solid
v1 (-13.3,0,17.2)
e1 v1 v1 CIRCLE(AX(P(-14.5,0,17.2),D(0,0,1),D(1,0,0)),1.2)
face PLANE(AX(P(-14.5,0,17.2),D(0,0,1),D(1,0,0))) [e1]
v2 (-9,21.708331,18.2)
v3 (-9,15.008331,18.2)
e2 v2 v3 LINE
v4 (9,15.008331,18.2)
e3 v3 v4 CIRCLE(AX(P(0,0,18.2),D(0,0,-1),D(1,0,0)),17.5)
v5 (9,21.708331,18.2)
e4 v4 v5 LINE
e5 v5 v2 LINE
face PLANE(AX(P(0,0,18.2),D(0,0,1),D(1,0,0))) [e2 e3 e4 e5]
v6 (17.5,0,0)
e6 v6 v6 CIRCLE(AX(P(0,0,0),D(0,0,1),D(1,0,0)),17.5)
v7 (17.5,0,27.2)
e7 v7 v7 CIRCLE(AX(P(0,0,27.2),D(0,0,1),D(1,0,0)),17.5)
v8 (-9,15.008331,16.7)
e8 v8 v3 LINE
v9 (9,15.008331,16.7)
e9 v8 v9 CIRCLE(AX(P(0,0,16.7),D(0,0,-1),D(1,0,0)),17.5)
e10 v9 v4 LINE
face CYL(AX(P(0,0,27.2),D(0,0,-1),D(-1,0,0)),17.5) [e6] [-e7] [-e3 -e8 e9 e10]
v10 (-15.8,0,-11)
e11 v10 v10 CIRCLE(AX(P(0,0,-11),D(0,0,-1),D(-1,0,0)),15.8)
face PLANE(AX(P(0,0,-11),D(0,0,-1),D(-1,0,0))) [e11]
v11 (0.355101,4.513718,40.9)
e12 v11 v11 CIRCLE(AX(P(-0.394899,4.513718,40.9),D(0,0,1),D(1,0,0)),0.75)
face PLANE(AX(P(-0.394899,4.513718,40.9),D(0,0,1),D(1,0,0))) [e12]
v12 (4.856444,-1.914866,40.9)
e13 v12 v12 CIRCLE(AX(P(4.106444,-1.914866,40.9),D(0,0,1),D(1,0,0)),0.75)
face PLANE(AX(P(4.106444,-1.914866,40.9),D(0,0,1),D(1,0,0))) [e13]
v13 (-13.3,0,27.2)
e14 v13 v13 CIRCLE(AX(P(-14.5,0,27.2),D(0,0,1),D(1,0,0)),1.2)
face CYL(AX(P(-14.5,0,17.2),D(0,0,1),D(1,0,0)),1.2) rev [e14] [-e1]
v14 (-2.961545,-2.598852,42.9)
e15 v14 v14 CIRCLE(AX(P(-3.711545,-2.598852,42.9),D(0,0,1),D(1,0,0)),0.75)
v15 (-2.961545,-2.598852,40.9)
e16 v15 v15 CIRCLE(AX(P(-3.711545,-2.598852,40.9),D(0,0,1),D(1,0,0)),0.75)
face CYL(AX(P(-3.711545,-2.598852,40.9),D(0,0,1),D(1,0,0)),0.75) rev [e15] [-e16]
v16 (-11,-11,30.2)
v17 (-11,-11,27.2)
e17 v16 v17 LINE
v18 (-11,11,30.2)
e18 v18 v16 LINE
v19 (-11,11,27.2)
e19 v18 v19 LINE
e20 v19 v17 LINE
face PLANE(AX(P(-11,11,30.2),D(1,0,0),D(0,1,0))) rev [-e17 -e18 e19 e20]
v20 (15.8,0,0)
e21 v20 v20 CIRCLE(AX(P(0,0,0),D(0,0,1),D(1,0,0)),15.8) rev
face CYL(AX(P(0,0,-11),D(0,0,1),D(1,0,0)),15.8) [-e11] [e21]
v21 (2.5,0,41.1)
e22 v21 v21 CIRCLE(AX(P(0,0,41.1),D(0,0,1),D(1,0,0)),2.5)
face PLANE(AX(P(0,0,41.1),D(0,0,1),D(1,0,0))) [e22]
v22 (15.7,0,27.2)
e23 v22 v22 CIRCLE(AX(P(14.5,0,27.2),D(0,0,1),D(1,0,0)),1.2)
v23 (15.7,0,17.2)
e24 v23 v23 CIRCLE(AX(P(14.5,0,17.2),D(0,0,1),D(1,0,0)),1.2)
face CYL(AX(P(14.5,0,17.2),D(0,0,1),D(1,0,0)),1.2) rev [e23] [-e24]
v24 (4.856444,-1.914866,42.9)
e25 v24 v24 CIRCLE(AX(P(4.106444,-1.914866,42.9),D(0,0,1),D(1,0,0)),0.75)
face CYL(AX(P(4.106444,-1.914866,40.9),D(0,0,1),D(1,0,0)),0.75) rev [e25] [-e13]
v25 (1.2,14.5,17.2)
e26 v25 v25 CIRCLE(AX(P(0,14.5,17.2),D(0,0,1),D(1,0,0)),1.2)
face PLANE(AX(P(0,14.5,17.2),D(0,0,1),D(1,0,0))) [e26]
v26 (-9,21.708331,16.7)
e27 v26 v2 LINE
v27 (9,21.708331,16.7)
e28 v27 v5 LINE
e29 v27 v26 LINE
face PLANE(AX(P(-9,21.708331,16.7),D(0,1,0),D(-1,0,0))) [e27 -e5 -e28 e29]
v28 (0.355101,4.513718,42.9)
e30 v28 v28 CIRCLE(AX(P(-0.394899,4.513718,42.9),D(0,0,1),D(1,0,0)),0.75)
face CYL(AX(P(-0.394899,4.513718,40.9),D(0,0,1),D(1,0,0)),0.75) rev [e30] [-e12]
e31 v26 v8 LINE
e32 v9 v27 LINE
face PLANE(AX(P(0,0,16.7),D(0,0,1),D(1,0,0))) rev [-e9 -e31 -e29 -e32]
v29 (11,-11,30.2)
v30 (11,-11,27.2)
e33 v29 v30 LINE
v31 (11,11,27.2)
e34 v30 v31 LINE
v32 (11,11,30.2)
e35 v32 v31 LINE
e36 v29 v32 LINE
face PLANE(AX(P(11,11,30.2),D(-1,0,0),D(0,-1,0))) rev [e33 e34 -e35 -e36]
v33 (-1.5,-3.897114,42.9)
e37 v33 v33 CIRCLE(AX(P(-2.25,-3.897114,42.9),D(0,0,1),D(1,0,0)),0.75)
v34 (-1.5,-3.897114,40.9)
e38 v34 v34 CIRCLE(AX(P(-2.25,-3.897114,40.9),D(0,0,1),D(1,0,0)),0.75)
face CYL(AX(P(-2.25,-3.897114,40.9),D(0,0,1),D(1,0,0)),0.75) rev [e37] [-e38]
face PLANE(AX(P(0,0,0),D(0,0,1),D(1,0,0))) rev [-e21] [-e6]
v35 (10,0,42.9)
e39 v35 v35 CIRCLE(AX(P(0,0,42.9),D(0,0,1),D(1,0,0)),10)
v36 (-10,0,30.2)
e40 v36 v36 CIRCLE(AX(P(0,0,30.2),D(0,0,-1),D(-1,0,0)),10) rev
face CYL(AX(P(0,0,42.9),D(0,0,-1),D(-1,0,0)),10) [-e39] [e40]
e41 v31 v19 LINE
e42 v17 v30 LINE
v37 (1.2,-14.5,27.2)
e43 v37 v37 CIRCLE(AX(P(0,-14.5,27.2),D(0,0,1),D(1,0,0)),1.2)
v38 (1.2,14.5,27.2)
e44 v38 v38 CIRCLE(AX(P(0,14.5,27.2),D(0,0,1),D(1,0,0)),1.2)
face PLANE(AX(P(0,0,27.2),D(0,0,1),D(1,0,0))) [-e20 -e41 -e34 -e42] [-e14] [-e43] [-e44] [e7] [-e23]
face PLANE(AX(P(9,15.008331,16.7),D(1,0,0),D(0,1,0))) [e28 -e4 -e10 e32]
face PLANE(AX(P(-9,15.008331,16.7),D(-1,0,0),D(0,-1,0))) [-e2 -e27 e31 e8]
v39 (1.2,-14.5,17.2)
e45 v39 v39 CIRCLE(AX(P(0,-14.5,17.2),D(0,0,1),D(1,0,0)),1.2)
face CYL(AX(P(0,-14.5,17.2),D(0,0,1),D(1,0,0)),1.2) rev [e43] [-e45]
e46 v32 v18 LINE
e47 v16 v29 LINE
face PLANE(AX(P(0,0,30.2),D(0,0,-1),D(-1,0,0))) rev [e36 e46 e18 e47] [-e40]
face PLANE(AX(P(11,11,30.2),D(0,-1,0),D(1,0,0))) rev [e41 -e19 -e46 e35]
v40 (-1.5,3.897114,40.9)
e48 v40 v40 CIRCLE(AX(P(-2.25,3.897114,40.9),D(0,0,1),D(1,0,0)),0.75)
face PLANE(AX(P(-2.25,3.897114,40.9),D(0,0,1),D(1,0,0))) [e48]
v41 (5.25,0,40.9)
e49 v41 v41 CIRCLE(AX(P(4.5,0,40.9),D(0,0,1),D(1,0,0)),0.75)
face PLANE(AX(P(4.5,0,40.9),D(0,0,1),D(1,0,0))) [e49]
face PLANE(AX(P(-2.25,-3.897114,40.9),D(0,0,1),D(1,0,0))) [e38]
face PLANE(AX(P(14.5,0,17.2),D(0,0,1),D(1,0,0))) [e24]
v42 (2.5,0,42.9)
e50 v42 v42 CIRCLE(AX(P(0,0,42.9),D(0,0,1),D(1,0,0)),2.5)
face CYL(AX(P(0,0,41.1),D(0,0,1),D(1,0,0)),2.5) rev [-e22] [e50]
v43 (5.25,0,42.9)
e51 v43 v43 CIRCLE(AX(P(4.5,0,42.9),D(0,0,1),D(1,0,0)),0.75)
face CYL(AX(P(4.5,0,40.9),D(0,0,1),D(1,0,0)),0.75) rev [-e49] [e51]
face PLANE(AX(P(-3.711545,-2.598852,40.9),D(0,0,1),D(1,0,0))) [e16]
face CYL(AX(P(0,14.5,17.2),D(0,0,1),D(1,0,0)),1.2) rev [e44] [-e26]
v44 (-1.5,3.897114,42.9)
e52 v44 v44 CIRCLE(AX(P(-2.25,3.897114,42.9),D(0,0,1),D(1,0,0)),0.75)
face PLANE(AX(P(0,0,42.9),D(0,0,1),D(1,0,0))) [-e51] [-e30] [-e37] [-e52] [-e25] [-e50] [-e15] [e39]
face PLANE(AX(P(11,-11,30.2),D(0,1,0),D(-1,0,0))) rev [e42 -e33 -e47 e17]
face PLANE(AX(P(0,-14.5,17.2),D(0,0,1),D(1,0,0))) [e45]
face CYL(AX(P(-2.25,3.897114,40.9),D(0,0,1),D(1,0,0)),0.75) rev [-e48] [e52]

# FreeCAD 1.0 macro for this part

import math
import FreeCAD as App
import Part
import Sketcher

V = App.Vector


def add_polygon(sketch, points):
    """Adds a closed chain of lines whose ends are joined by coincident constraints."""
    first, n = sketch.GeometryCount, len(points)
    for a, b in zip(points, points[1:] + points[:1]):
        sketch.addGeometry(Part.LineSegment(App.Vector(*a, 0), App.Vector(*b, 0)), False)
    for i in range(n):
        sketch.addConstraint(Sketcher.Constraint("Coincident", first + i, 2, first + (i + 1) % n, 1))

doc = App.newDocument("Part")
params = doc.addObject("Spreadsheet::Sheet", "Params")
for row, (alias, value) in enumerate([
    ("sketch1_diameter", "35 mm"),
    ("pad1_length", "27.2 mm"),
    ("sketch2_diameter", "31.6 mm"),
    ("pad2_length", "11 mm"),
    ("sketch3_width", "22 mm"),
    ("pad3_length", "3 mm"),
    ("sketch4_diameter", "20 mm"),
    ("pad4_length", "12.7 mm"),
    ("sketch5_diameter", "2.4 mm"),
    ("pocket1_length", "10 mm"),
    ("sketch6_radius", "17.5 mm"),
    ("sketch6_width", "18 mm"),
    ("sketch6_height", "6.7 mm"),
    ("pad5_length", "1.5 mm"),
    ("sketch7_diameter", "5 mm"),
    ("pocket2_length", "1.8 mm"),
    ("sketch8_diameter", "1.5 mm"),
    ("pocket3_length", "2 mm"),
], start=1):
    params.set(f"A{row}", alias)
    params.set(f"B{row}", "=" + value)
    params.setAlias(f"B{row}", alias)

body = doc.addObject("PartDesign::Body", "Body")

sketch1 = body.newObject("Sketcher::SketchObject", "Sketch")
sketch1.AttachmentSupport = (doc.getObject("XY_Plane"), [""])
sketch1.MapMode = "FlatFace"
sketch1.addGeometry(Part.Circle(V(0, 0, 0), V(0, 0, 1), 18), False)
sketch1.addConstraint(Sketcher.Constraint("Coincident", 0, 3, -1, 1))
sketch1.addConstraint(Sketcher.Constraint("Diameter", 0, 35.0))
sketch1.setExpression("Constraints[1]", "Params.sketch1_diameter")
pad1 = body.newObject("PartDesign::Pad", "Pad")
pad1.Profile = sketch1
pad1.setExpression("Length", "Params.pad1_length")

sketch2 = body.newObject("Sketcher::SketchObject", "Sketch001")
sketch2.AttachmentSupport = (doc.getObject("XY_Plane"), [""])
sketch2.MapMode = "FlatFace"
sketch2.addGeometry(Part.Circle(V(0, 0, 0), V(0, 0, 1), 16), False)
sketch2.addConstraint(Sketcher.Constraint("Coincident", 0, 3, -1, 1))
sketch2.addConstraint(Sketcher.Constraint("Diameter", 0, 31.6))
sketch2.setExpression("Constraints[1]", "Params.sketch2_diameter")
pad2 = body.newObject("PartDesign::Pad", "Pad001")
pad2.Profile = sketch2
pad2.setExpression("Length", "Params.pad2_length")
pad2.Reversed = True

sketch3 = body.newObject("Sketcher::SketchObject", "Sketch002")
sketch3.AttachmentSupport = (doc.getObject("XY_Plane"), [""])
sketch3.MapMode = "FlatFace"
sketch3.AttachmentOffset = App.Placement(V(0, 0, 27.2), App.Rotation())
add_polygon(sketch3, [(-11, 11), (-11, -11), (11, -11), (11, 11)])
sketch3.addConstraint(Sketcher.Constraint("Vertical", 0))
sketch3.addConstraint(Sketcher.Constraint("Horizontal", 1))
sketch3.addConstraint(Sketcher.Constraint("Vertical", 2))
sketch3.addConstraint(Sketcher.Constraint("Horizontal", 3))
sketch3.addConstraint(Sketcher.Constraint("Symmetric", 0, 2, 2, 2, -1, 1))
sketch3.addConstraint(Sketcher.Constraint("Equal", 3, 0))
sketch3.addConstraint(Sketcher.Constraint("DistanceX", 1, 1, 1, 2, 22.0))
sketch3.setExpression("Constraints[10]", "Params.sketch3_width")
pad3 = body.newObject("PartDesign::Pad", "Pad002")
pad3.Profile = sketch3
pad3.setExpression("Length", "Params.pad3_length")

sketch4 = body.newObject("Sketcher::SketchObject", "Sketch003")
sketch4.AttachmentSupport = (doc.getObject("XY_Plane"), [""])
sketch4.MapMode = "FlatFace"
sketch4.AttachmentOffset = App.Placement(V(0, 0, 30.2), App.Rotation())
sketch4.addGeometry(Part.Circle(V(0, 0, 0), V(0, 0, 1), 10), False)
sketch4.addConstraint(Sketcher.Constraint("Coincident", 0, 3, -1, 1))
sketch4.addConstraint(Sketcher.Constraint("Diameter", 0, 20.0))
sketch4.setExpression("Constraints[1]", "Params.sketch4_diameter")
pad4 = body.newObject("PartDesign::Pad", "Pad003")
pad4.Profile = sketch4
pad4.setExpression("Length", "Params.pad4_length")

sketch5 = body.newObject("Sketcher::SketchObject", "Sketch004")
sketch5.AttachmentSupport = (doc.getObject("XY_Plane"), [""])
sketch5.MapMode = "FlatFace"
sketch5.AttachmentOffset = App.Placement(V(0, 0, 27.2), App.Rotation())
sketch5.addGeometry(Part.Circle(V(0, -14.5, 0), V(0, 0, 1), 1.2), False)
sketch5.addGeometry(Part.Circle(V(-14.5, 0, 0), V(0, 0, 1), 1.2), False)
sketch5.addGeometry(Part.Circle(V(0, 14.5, 0), V(0, 0, 1), 1.2), False)
sketch5.addGeometry(Part.Circle(V(14.5, 0, 0), V(0, 0, 1), 1.2), False)
sketch5.addConstraint(Sketcher.Constraint("Equal", 0, 1))
sketch5.addConstraint(Sketcher.Constraint("Equal", 1, 2))
sketch5.addConstraint(Sketcher.Constraint("Equal", 2, 3))
sketch5.addConstraint(Sketcher.Constraint("Symmetric", 0, 3, 2, 3, -1, 1))
sketch5.addConstraint(Sketcher.Constraint("Symmetric", 1, 3, 3, 3, -1, 1))
sketch5.addConstraint(Sketcher.Constraint("PointOnObject", 0, 3, -2))
sketch5.addConstraint(Sketcher.Constraint("PointOnObject", 1, 3, -1))
sketch5.addConstraint(Sketcher.Constraint("Diameter", 0, 2.4))
sketch5.addConstraint(Sketcher.Constraint("DistanceY", 0, 3, 2, 3, 29.0))
sketch5.addConstraint(Sketcher.Constraint("DistanceX", 1, 3, 3, 3, 29.0))
sketch5.setExpression("Constraints[7]", "Params.sketch5_diameter")
pocket1 = body.newObject("PartDesign::Pocket", "Pocket")
pocket1.Profile = sketch5
pocket1.setExpression("Length", "Params.pocket1_length")

sketch6 = body.newObject("Sketcher::SketchObject", "Sketch005")
sketch6.AttachmentSupport = (doc.getObject("XY_Plane"), [""])
sketch6.MapMode = "FlatFace"
sketch6.AttachmentOffset = App.Placement(V(0, 0, 16.7), App.Rotation())
sketch6.addGeometry(Part.LineSegment(V(-9, 22, 0), V(-9, 15, 0)), False)
sketch6.addGeometry(Part.ArcOfCircle(Part.Circle(V(0, 0, 0), V(0, 0, 1), 18), math.radians(59), math.radians(121)), False)
sketch6.addGeometry(Part.LineSegment(V(9, 15, 0), V(9, 22, 0)), False)
sketch6.addGeometry(Part.LineSegment(V(9, 22, 0), V(-9, 22, 0)), False)
sketch6.addConstraint(Sketcher.Constraint("Coincident", 0, 2, 1, 2))
sketch6.addConstraint(Sketcher.Constraint("Coincident", 1, 1, 2, 1))
sketch6.addConstraint(Sketcher.Constraint("Coincident", 2, 2, 3, 1))
sketch6.addConstraint(Sketcher.Constraint("Coincident", 3, 2, 0, 1))
sketch6.addConstraint(Sketcher.Constraint("Vertical", 0))
sketch6.addConstraint(Sketcher.Constraint("Vertical", 2))
sketch6.addConstraint(Sketcher.Constraint("Horizontal", 3))
sketch6.addConstraint(Sketcher.Constraint("Coincident", 1, 3, -1, 1))
sketch6.addConstraint(Sketcher.Constraint("Horizontal", 0, 2, 1, 1))
sketch6.addConstraint(Sketcher.Constraint("Radius", 1, 17.5))
sketch6.addConstraint(Sketcher.Constraint("DistanceX", 3, 2, 3, 1, 18.0))
sketch6.addConstraint(Sketcher.Constraint("DistanceY", 0, 2, 0, 1, 6.7))
sketch6.setExpression("Constraints[9]", "Params.sketch6_radius")
sketch6.setExpression("Constraints[10]", "Params.sketch6_width")
sketch6.setExpression("Constraints[11]", "Params.sketch6_height")
pad5 = body.newObject("PartDesign::Pad", "Pad004")
pad5.Profile = sketch6
pad5.setExpression("Length", "Params.pad5_length")

sketch7 = body.newObject("Sketcher::SketchObject", "Sketch006")
sketch7.AttachmentSupport = (doc.getObject("XY_Plane"), [""])
sketch7.MapMode = "FlatFace"
sketch7.AttachmentOffset = App.Placement(V(0, 0, 42.9), App.Rotation())
sketch7.addGeometry(Part.Circle(V(0, 0, 0), V(0, 0, 1), 2.5), False)
sketch7.addConstraint(Sketcher.Constraint("Coincident", 0, 3, -1, 1))
sketch7.addConstraint(Sketcher.Constraint("Diameter", 0, 5.0))
sketch7.setExpression("Constraints[1]", "Params.sketch7_diameter")
pocket2 = body.newObject("PartDesign::Pocket", "Pocket001")
pocket2.Profile = sketch7
pocket2.setExpression("Length", "Params.pocket2_length")

sketch8 = body.newObject("Sketcher::SketchObject", "Sketch007")
sketch8.AttachmentSupport = (doc.getObject("XY_Plane"), [""])
sketch8.MapMode = "FlatFace"
sketch8.AttachmentOffset = App.Placement(V(0, 0, 42.9), App.Rotation())
sketch8.addGeometry(Part.Circle(V(4.5, 0, 0), V(0, 0, 1), 0.8), False)
sketch8.addGeometry(Part.Circle(V(4.1, -1.9, 0), V(0, 0, 1), 0.8), False)
sketch8.addGeometry(Part.Circle(V(-2.2, -3.9, 0), V(0, 0, 1), 0.8), False)
sketch8.addGeometry(Part.Circle(V(-3.7, -2.6, 0), V(0, 0, 1), 0.8), False)
sketch8.addGeometry(Part.Circle(V(-2.2, 3.9, 0), V(0, 0, 1), 0.8), False)
sketch8.addGeometry(Part.Circle(V(-0.4, 4.5, 0), V(0, 0, 1), 0.8), False)
sketch8.addConstraint(Sketcher.Constraint("Equal", 0, 1))
sketch8.addConstraint(Sketcher.Constraint("Equal", 1, 2))
sketch8.addConstraint(Sketcher.Constraint("Equal", 2, 3))
sketch8.addConstraint(Sketcher.Constraint("Equal", 3, 4))
sketch8.addConstraint(Sketcher.Constraint("Equal", 4, 5))
sketch8.addConstraint(Sketcher.Constraint("Symmetric", 2, 3, 4, 3, -1))
sketch8.addConstraint(Sketcher.Constraint("PointOnObject", 0, 3, -1))
sketch8.addConstraint(Sketcher.Constraint("Diameter", 0, 1.5))
sketch8.addConstraint(Sketcher.Constraint("DistanceX", -1, 1, 0, 3, 4.5))
sketch8.addConstraint(Sketcher.Constraint("DistanceX", 2, 3, -1, 1, 2.25))
sketch8.addConstraint(Sketcher.Constraint("DistanceX", 5, 3, -1, 1, 0.394899))
sketch8.addConstraint(Sketcher.Constraint("DistanceY", 3, 3, -1, 1, 2.598852))
sketch8.addConstraint(Sketcher.Constraint("DistanceY", 2, 3, 1, 3, 1.982248))
sketch8.addConstraint(Sketcher.Constraint("DistanceX", 3, 3, 1, 3, 7.817989))
sketch8.addConstraint(Sketcher.Constraint("DistanceY", 2, 3, 4, 3, 7.794229))
sketch8.addConstraint(Sketcher.Constraint("DistanceY", 3, 3, 5, 3, 7.112569))
sketch8.addConstraint(Sketcher.Constraint("DistanceX", -1, 1, 1, 3, 4.106444))
sketch8.setExpression("Constraints[7]", "Params.sketch8_diameter")
pocket3 = body.newObject("PartDesign::Pocket", "Pocket002")
pocket3.Profile = sketch8
pocket3.setExpression("Length", "Params.pocket3_length")

doc.recompute()
